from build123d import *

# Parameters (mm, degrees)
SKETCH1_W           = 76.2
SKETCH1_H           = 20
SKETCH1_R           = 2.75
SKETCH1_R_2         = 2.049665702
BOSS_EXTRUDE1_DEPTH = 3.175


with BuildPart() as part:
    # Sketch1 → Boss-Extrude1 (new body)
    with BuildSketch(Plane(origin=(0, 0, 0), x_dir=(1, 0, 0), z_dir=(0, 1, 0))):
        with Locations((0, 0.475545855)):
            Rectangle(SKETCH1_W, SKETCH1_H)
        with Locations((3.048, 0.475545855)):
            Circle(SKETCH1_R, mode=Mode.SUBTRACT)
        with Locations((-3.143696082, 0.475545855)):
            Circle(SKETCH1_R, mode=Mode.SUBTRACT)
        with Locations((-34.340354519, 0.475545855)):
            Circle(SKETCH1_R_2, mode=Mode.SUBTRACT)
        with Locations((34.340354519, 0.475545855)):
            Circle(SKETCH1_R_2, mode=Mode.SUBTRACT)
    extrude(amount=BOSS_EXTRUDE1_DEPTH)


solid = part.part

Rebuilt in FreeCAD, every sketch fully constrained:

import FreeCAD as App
import Part
import Sketcher
Q = App.Units.Quantity


def add_polygon(sketch, points):
    """Adds a closed chain of lines whose ends are joined by coincident constraints."""
    first, n = sketch.GeometryCount, len(points)
    for a, b in zip(points, points[1:] + points[:1]):
        sketch.addGeometry(Part.LineSegment(App.Vector(*a, 0), App.Vector(*b, 0)), False)
    for i in range(n):
        sketch.addConstraint(Sketcher.Constraint("Coincident", first + i, 2, first + (i + 1) % n, 1))

doc = App.newDocument("Part")
params = doc.addObject("Spreadsheet::Sheet", "Params")
for row, (alias, value) in enumerate([
    ("sketch1_diameter", "5.5 mm"),
    ("sketch1_height", "20 mm"),
    ("sketch1_width", "76.2 mm"),
    ("pad1_length", "3.175 mm"),
], start=1):
    params.set(f"A{row}", alias)
    params.set(f"B{row}", "=" + value)
    params.setAlias(f"B{row}", alias)

body = doc.addObject("PartDesign::Body", "Body")

# Sketch on XZ plane
sketch1 = body.newObject("Sketcher::SketchObject", "Sketch")
sketch1.AttachmentSupport = (doc.getObject("XZ_Plane"), [""])
sketch1.MapMode = "FlatFace"
add_polygon(sketch1, [(-38.1, -10.5), (-38.1, 9.5), (38.1, 9.5), (38.1, -10.5)])  # lines 0-3
sketch1.addGeometry(Part.Circle(App.Vector(-34.3, -0.5, 0), App.Vector(0, 0, 1), 2), False)  # 4
sketch1.addGeometry(Part.Circle(App.Vector(-3.1, -0.5, 0), App.Vector(0, 0, 1), 2.8), False)  # 5
sketch1.addGeometry(Part.Circle(App.Vector(3, -0.5, 0), App.Vector(0, 0, 1), 2.8), False)  # 6
sketch1.addGeometry(Part.Circle(App.Vector(34.3, -0.5, 0), App.Vector(0, 0, 1), 2), False)  # 7
sketch1.addConstraint([
    Sketcher.Constraint("Vertical", 0),
    Sketcher.Constraint("Horizontal", 1),
    Sketcher.Constraint("Vertical", 2),
    Sketcher.Constraint("Horizontal", 3),
    Sketcher.Constraint("Equal", 5, 6),
    Sketcher.Constraint("Equal", 4, 7),
    Sketcher.Constraint("Symmetric", 4, 3, 7, 3, -2),
    Sketcher.Constraint("Horizontal", 4, 3, 5, 3),
    Sketcher.Constraint("Horizontal", 5, 3, 6, 3),
    Sketcher.Constraint("Diameter", 5, Q("5.5 mm")),
    Sketcher.Constraint("DistanceY", 0, 1, 0, 2, Q("20 mm")),
    Sketcher.Constraint("DistanceX", 1, 1, 1, 2, Q("76.2 mm")),
    Sketcher.Constraint("DistanceY", 4, 3, 0, 2, Q("10 mm")),
    Sketcher.Constraint("DistanceX", 0, 2, -1, 1, Q("38.1 mm")),
    Sketcher.Constraint("Diameter", 4, Q("4.099331 mm")),
    Sketcher.Constraint("DistanceX", -1, 1, 6, 3, Q("3.048 mm")),
    Sketcher.Constraint("DistanceX", 4, 3, 5, 3, Q("31.196658 mm")),
    Sketcher.Constraint("DistanceX", 5, 3, 7, 3, Q("37.484051 mm")),
    Sketcher.Constraint("DistanceY", 4, 3, -1, 1, Q("0.475546 mm")),
])
sketch1.setExpression("Constraints[13]", "Params.sketch1_diameter")
sketch1.setExpression("Constraints[14]", "Params.sketch1_height")
sketch1.setExpression("Constraints[15]", "Params.sketch1_width")
pad1 = body.newObject("PartDesign::Pad", "Pad")
pad1.Profile = sketch1
pad1.setExpression("Length", "Params.pad1_length")
pad1.Reversed = True

doc.recompute()
